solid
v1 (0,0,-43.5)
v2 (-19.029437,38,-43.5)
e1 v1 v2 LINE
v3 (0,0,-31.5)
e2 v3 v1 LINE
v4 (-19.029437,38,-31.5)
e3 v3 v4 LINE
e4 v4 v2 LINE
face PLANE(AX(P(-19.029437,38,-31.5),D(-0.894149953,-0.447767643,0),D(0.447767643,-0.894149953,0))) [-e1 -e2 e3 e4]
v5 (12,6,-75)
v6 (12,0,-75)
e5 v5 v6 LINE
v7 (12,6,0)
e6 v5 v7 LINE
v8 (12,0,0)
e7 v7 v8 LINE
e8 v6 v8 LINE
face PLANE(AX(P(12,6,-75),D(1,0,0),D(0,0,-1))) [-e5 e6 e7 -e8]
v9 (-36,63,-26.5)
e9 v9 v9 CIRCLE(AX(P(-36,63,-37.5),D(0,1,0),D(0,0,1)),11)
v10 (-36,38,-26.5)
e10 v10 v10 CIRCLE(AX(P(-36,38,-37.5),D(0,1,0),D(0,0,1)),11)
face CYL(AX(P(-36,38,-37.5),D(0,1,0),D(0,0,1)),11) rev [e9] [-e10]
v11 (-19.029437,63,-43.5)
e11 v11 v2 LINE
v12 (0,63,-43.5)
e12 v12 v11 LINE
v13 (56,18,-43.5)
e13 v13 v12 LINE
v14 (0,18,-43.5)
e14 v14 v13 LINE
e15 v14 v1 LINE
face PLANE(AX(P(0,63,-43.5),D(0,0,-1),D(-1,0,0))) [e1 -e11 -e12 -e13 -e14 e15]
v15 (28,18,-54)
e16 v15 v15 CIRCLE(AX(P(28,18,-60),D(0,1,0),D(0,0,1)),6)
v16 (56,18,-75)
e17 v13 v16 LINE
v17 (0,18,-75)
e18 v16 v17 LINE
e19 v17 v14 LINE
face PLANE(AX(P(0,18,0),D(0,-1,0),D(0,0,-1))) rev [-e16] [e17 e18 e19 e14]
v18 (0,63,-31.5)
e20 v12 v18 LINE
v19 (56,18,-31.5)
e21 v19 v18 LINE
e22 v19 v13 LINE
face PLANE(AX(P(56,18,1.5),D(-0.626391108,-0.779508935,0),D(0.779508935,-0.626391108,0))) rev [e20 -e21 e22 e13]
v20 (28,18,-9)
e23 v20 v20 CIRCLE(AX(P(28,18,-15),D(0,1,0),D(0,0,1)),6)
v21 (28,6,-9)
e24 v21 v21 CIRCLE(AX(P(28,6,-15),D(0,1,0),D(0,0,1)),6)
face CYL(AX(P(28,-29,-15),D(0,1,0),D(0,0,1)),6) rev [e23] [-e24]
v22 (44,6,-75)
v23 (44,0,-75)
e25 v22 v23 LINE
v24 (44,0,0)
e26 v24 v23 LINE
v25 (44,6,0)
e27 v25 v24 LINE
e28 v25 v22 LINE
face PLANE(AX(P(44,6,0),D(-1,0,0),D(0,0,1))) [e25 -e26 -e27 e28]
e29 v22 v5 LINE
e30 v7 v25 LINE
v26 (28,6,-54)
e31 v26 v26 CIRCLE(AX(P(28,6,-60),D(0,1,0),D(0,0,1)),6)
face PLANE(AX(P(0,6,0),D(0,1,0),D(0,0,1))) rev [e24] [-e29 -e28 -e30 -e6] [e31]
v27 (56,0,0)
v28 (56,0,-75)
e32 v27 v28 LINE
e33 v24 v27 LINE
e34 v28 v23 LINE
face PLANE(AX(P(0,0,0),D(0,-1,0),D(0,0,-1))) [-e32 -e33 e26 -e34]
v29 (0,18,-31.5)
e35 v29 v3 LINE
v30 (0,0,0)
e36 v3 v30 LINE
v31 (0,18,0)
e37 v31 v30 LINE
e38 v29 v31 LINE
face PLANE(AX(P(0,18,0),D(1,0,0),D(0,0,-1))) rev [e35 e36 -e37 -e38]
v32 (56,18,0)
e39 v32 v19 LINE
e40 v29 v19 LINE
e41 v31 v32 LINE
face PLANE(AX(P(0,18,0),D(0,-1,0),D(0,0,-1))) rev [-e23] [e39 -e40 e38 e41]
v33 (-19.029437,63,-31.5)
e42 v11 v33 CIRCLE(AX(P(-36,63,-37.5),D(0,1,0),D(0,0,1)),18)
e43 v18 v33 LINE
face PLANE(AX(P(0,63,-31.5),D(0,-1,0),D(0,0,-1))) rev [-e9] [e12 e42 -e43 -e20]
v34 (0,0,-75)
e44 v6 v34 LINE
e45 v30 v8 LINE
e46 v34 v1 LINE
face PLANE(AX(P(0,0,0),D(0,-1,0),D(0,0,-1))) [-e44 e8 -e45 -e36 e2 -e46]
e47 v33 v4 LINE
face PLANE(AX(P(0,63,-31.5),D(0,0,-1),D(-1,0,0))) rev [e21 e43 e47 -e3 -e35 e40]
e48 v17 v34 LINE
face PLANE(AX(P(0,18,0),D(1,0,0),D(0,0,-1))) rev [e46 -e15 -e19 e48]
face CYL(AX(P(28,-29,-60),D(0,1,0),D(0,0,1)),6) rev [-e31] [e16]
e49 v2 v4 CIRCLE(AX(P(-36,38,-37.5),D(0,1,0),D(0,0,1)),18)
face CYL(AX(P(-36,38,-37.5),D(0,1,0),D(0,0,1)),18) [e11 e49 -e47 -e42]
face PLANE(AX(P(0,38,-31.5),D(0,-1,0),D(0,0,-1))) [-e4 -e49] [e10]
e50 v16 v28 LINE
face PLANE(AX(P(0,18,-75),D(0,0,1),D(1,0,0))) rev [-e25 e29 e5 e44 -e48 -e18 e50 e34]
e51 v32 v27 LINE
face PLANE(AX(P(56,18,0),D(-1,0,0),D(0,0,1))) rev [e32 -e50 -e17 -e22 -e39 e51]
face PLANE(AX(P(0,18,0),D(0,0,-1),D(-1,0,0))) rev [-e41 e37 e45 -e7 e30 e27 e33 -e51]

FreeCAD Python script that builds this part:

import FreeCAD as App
import Part
import Sketcher

V = App.Vector

doc = App.newDocument("Part")
params = doc.addObject("Spreadsheet::Sheet", "Params")
for row, (alias, value) in enumerate([
    ("sketch1_width", "56 mm"),
    ("sketch1_height", "75 mm"),
    ("pad1_length", "18 mm"),
    ("sketch2_width", "32 mm"),
    ("sketch2_height", "75 mm"),
    ("pocket1_length", "6 mm"),
    ("sketch3_diameter", "12 mm"),
    ("pocket2_length", "47 mm"),
    ("sketch4_width", "56 mm"),
    ("sketch4_height", "12 mm"),
    ("pad2_length", "45 mm"),
    ("sketch5_width", "56 mm"),
    ("sketch5_height", "45 mm"),
    ("pocket3_length", "45 mm"),
    ("sketch6_width", "36 mm"),
    ("sketch6_height", "25 mm"),
    ("pad3_length", "12 mm"),
    ("sketch7_diameter", "36 mm"),
    ("pad4_length", "25 mm"),
    ("sketch8_diameter", "22 mm"),
    ("pocket4_length", "25 mm"),
    ("sketch9_height", "38 mm"),
    ("pad5_length", "12 mm"),
], start=1):
    params.set(f"A{row}", alias)
    params.set(f"B{row}", "=" + value)
    params.setAlias(f"B{row}", alias)

body = doc.addObject("PartDesign::Body", "Body")

sketch1 = body.newObject("Sketcher::SketchObject", "Sketch")
sketch1.AttachmentSupport = (doc.getObject("XZ_Plane"), [""])
sketch1.MapMode = "FlatFace"
sketch1.addGeometry([
    Part.LineSegment(V(0, -75, 0), V(0, 0, 0)),
    Part.LineSegment(V(0, 0, 0), V(56, 0, 0)),
    Part.LineSegment(V(56, 0, 0), V(56, -75, 0)),
    Part.LineSegment(V(56, -75, 0), V(0, -75, 0)),
], False)
sketch1.addConstraint([
    Sketcher.Constraint("Coincident", 0, 2, 1, 1),
    Sketcher.Constraint("Coincident", 1, 2, 2, 1),
    Sketcher.Constraint("Coincident", 2, 2, 3, 1),
    Sketcher.Constraint("Coincident", 3, 2, 0, 1),
    Sketcher.Constraint("Vertical", 0),
    Sketcher.Constraint("Horizontal", 1),
    Sketcher.Constraint("Vertical", 2),
    Sketcher.Constraint("Horizontal", 3),
    Sketcher.Constraint("Coincident", 0, 2, -1, 1),
    Sketcher.Constraint("DistanceX", 1, 1, 1, 2, 56.0),
    Sketcher.Constraint("DistanceY", 0, 1, 0, 2, 75.0),
])
sketch1.setExpression("Constraints[9]", "Params.sketch1_width")
sketch1.setExpression("Constraints[10]", "Params.sketch1_height")
pad1 = body.newObject("PartDesign::Pad", "Pad")
pad1.Profile = sketch1
pad1.setExpression("Length", "Params.pad1_length")
pad1.Reversed = True

sketch2 = body.newObject("Sketcher::SketchObject", "Sketch001")
sketch2.AttachmentSupport = (doc.getObject("XZ_Plane"), [""])
sketch2.MapMode = "FlatFace"
sketch2.addGeometry([
    Part.LineSegment(V(12, 0, 0), V(12, -75, 0)),
    Part.LineSegment(V(12, -75, 0), V(44, -75, 0)),
    Part.LineSegment(V(44, -75, 0), V(44, 0, 0)),
    Part.LineSegment(V(44, 0, 0), V(12, 0, 0)),
], False)
sketch2.addConstraint([
    Sketcher.Constraint("Coincident", 0, 2, 1, 1),
    Sketcher.Constraint("Coincident", 1, 2, 2, 1),
    Sketcher.Constraint("Coincident", 2, 2, 3, 1),
    Sketcher.Constraint("Coincident", 3, 2, 0, 1),
    Sketcher.Constraint("Vertical", 0),
    Sketcher.Constraint("Horizontal", 1),
    Sketcher.Constraint("Vertical", 2),
    Sketcher.Constraint("Horizontal", 3),
    Sketcher.Constraint("PointOnObject", 2, 2, -1),
    Sketcher.Constraint("DistanceX", 1, 1, 1, 2, 32.0),
    Sketcher.Constraint("DistanceY", 0, 2, 0, 1, 75.0),
    Sketcher.Constraint("DistanceX", -1, 1, 0, 2, 12.0),
])
sketch2.setExpression("Constraints[9]", "Params.sketch2_width")
sketch2.setExpression("Constraints[10]", "Params.sketch2_height")
pocket1 = body.newObject("PartDesign::Pocket", "Pocket")
pocket1.Profile = sketch2
pocket1.setExpression("Length", "Params.pocket1_length")

sketch3 = body.newObject("Sketcher::SketchObject", "Sketch002")
sketch3.AttachmentSupport = (doc.getObject("XZ_Plane"), [""])
sketch3.MapMode = "FlatFace"
sketch3.AttachmentOffset = App.Placement(V(0, 0, -18), App.Rotation())
sketch3.addGeometry([
    Part.Circle(V(28, -15, 0), V(0, 0, 1), 6),
    Part.Circle(V(28, -60, 0), V(0, 0, 1), 6),
], False)
sketch3.addConstraint([
    Sketcher.Constraint("Equal", 0, 1),
    Sketcher.Constraint("Vertical", 0, 3, 1, 3),
    Sketcher.Constraint("Diameter", 0, 12.0),
    Sketcher.Constraint("DistanceX", -1, 1, 0, 3, 28.0),
    Sketcher.Constraint("DistanceY", 0, 3, -1, 1, 15.0),
    Sketcher.Constraint("DistanceY", 1, 3, -1, 1, 60.0),
])
sketch3.setExpression("Constraints[2]", "Params.sketch3_diameter")
pocket2 = body.newObject("PartDesign::Pocket", "Pocket001")
pocket2.Profile = sketch3
pocket2.setExpression("Length", "Params.pocket2_length")
pocket2.Reversed = True

sketch4 = body.newObject("Sketcher::SketchObject", "Sketch003")
sketch4.AttachmentSupport = (doc.getObject("XZ_Plane"), [""])
sketch4.MapMode = "FlatFace"
sketch4.AttachmentOffset = App.Placement(V(0, 0, -18), App.Rotation())
sketch4.addGeometry([
    Part.LineSegment(V(0, -44, 0), V(0, -32, 0)),
    Part.LineSegment(V(0, -32, 0), V(56, -32, 0)),
    Part.LineSegment(V(56, -32, 0), V(56, -44, 0)),
    Part.LineSegment(V(56, -44, 0), V(0, -44, 0)),
], False)
sketch4.addConstraint([
    Sketcher.Constraint("Coincident", 0, 2, 1, 1),
    Sketcher.Constraint("Coincident", 1, 2, 2, 1),
    Sketcher.Constraint("Coincident", 2, 2, 3, 1),
    Sketcher.Constraint("Coincident", 3, 2, 0, 1),
    Sketcher.Constraint("Vertical", 0),
    Sketcher.Constraint("Horizontal", 1),
    Sketcher.Constraint("Vertical", 2),
    Sketcher.Constraint("Horizontal", 3),
    Sketcher.Constraint("PointOnObject", 0, 2, -2),
    Sketcher.Constraint("DistanceX", 1, 1, 1, 2, 56.0),
    Sketcher.Constraint("DistanceY", 0, 1, 0, 2, 12.0),
    Sketcher.Constraint("DistanceY", 0, 2, -1, 1, 31.5),
])
sketch4.setExpression("Constraints[9]", "Params.sketch4_width")
sketch4.setExpression("Constraints[10]", "Params.sketch4_height")
pad2 = body.newObject("PartDesign::Pad", "Pad001")
pad2.Profile = sketch4
pad2.setExpression("Length", "Params.pad2_length")
pad2.Reversed = True

sketch5 = body.newObject("Sketcher::SketchObject", "Sketch004")
sketch5.AttachmentSupport = (doc.getObject("XY_Plane"), [""])
sketch5.MapMode = "FlatFace"
sketch5.AttachmentOffset = App.Placement(V(0, 0, -43.5), App.Rotation())
sketch5.addGeometry([
    Part.LineSegment(V(56, 18, 0), V(0, 63, 0)),
    Part.LineSegment(V(0, 63, 0), V(56, 63, 0)),
    Part.LineSegment(V(56, 63, 0), V(56, 18, 0)),
], False)
sketch5.addConstraint([
    Sketcher.Constraint("Coincident", 0, 2, 1, 1),
    Sketcher.Constraint("Coincident", 1, 2, 2, 1),
    Sketcher.Constraint("Coincident", 2, 2, 0, 1),
    Sketcher.Constraint("Horizontal", 1),
    Sketcher.Constraint("Vertical", 2),
    Sketcher.Constraint("PointOnObject", 0, 2, -2),
    Sketcher.Constraint("DistanceX", 1, 1, 1, 2, 56.0),
    Sketcher.Constraint("DistanceY", 2, 2, 2, 1, 45.0),
    Sketcher.Constraint("DistanceY", -1, 1, 0, 2, 63.0),
])
sketch5.setExpression("Constraints[6]", "Params.sketch5_width")
sketch5.setExpression("Constraints[7]", "Params.sketch5_height")
pocket3 = body.newObject("PartDesign::Pocket", "Pocket002")
pocket3.Profile = sketch5
pocket3.setExpression("Length", "Params.pocket3_length")
pocket3.Reversed = True

sketch6 = body.newObject("Sketcher::SketchObject", "Sketch005")
sketch6.AttachmentSupport = (doc.getObject("XY_Plane"), [""])
sketch6.MapMode = "FlatFace"
sketch6.AttachmentOffset = App.Placement(V(0, 0, -43.5), App.Rotation())
sketch6.addGeometry([
    Part.LineSegment(V(0, 63, 0), V(0, 38, 0)),
    Part.LineSegment(V(0, 38, 0), V(-36, 38, 0)),
    Part.LineSegment(V(-36, 38, 0), V(-36, 63, 0)),
    Part.LineSegment(V(-36, 63, 0), V(0, 63, 0)),
], False)
sketch6.addConstraint([
    Sketcher.Constraint("Coincident", 0, 2, 1, 1),
    Sketcher.Constraint("Coincident", 1, 2, 2, 1),
    Sketcher.Constraint("Coincident", 2, 2, 3, 1),
    Sketcher.Constraint("Coincident", 3, 2, 0, 1),
    Sketcher.Constraint("Vertical", 0),
    Sketcher.Constraint("Horizontal", 1),
    Sketcher.Constraint("Vertical", 2),
    Sketcher.Constraint("Horizontal", 3),
    Sketcher.Constraint("PointOnObject", 0, 2, -2),
    Sketcher.Constraint("DistanceX", 1, 2, 1, 1, 36.0),
    Sketcher.Constraint("DistanceY", 0, 2, 0, 1, 25.0),
    Sketcher.Constraint("DistanceY", -1, 1, 0, 2, 38.0),
])
sketch6.setExpression("Constraints[9]", "Params.sketch6_width")
sketch6.setExpression("Constraints[10]", "Params.sketch6_height")
pad3 = body.newObject("PartDesign::Pad", "Pad002")
pad3.Profile = sketch6
pad3.setExpression("Length", "Params.pad3_length")

sketch7 = body.newObject("Sketcher::SketchObject", "Sketch006")
sketch7.AttachmentSupport = (doc.getObject("XZ_Plane"), [""])
sketch7.MapMode = "FlatFace"
sketch7.AttachmentOffset = App.Placement(V(0, 0, -63), App.Rotation())
sketch7.addGeometry(Part.Circle(V(-36, -38, 0), V(0, 0, 1), 18), False)
sketch7.addConstraint([
    Sketcher.Constraint("Diameter", 0, 36.0),
    Sketcher.Constraint("DistanceX", 0, 3, -1, 1, 36.0),
    Sketcher.Constraint("DistanceY", 0, 3, -1, 1, 37.5),
])
sketch7.setExpression("Constraints[0]", "Params.sketch7_diameter")
pad4 = body.newObject("PartDesign::Pad", "Pad003")
pad4.Profile = sketch7
pad4.setExpression("Length", "Params.pad4_length")

sketch8 = body.newObject("Sketcher::SketchObject", "Sketch007")
sketch8.AttachmentSupport = (doc.getObject("XZ_Plane"), [""])
sketch8.MapMode = "FlatFace"
sketch8.AttachmentOffset = App.Placement(V(0, 0, -63), App.Rotation())
sketch8.addGeometry(Part.Circle(V(-36, -38, 0), V(0, 0, 1), 11), False)
sketch8.addConstraint([
    Sketcher.Constraint("Diameter", 0, 22.0),
    Sketcher.Constraint("DistanceX", 0, 3, -1, 1, 36.0),
    Sketcher.Constraint("DistanceY", 0, 3, -1, 1, 37.5),
])
sketch8.setExpression("Constraints[0]", "Params.sketch8_diameter")
pocket4 = body.newObject("PartDesign::Pocket", "Pocket003")
pocket4.Profile = sketch8
pocket4.setExpression("Length", "Params.pocket4_length")
pocket4.Reversed = True

sketch9 = body.newObject("Sketcher::SketchObject", "Sketch008")
sketch9.AttachmentSupport = (doc.getObject("XY_Plane"), [""])
sketch9.MapMode = "FlatFace"
sketch9.AttachmentOffset = App.Placement(V(0, 0, -43.5), App.Rotation())
sketch9.addGeometry([
    Part.LineSegment(V(0, 0, 0), V(-19, 38, 0)),
    Part.LineSegment(V(-19, 38, 0), V(0, 38, 0)),
    Part.LineSegment(V(0, 38, 0), V(0, 0, 0)),
], False)
sketch9.addConstraint([
    Sketcher.Constraint("Coincident", 0, 2, 1, 1),
    Sketcher.Constraint("Coincident", 1, 2, 2, 1),
    Sketcher.Constraint("Coincident", 2, 2, 0, 1),
    Sketcher.Constraint("Horizontal", 1),
    Sketcher.Constraint("Vertical", 2),
    Sketcher.Constraint("Coincident", 2, 2, -1, 1),
    Sketcher.Constraint("DistanceY", 2, 2, 2, 1, 38.0),
    Sketcher.Constraint("DistanceX", 1, 1, 1, 2, 19.029437),
])
sketch9.setExpression("Constraints[6]", "Params.sketch9_height")
pad5 = body.newObject("PartDesign::Pad", "Pad004")
pad5.Profile = sketch9
pad5.setExpression("Length", "Params.pad5_length")

doc.recompute()
